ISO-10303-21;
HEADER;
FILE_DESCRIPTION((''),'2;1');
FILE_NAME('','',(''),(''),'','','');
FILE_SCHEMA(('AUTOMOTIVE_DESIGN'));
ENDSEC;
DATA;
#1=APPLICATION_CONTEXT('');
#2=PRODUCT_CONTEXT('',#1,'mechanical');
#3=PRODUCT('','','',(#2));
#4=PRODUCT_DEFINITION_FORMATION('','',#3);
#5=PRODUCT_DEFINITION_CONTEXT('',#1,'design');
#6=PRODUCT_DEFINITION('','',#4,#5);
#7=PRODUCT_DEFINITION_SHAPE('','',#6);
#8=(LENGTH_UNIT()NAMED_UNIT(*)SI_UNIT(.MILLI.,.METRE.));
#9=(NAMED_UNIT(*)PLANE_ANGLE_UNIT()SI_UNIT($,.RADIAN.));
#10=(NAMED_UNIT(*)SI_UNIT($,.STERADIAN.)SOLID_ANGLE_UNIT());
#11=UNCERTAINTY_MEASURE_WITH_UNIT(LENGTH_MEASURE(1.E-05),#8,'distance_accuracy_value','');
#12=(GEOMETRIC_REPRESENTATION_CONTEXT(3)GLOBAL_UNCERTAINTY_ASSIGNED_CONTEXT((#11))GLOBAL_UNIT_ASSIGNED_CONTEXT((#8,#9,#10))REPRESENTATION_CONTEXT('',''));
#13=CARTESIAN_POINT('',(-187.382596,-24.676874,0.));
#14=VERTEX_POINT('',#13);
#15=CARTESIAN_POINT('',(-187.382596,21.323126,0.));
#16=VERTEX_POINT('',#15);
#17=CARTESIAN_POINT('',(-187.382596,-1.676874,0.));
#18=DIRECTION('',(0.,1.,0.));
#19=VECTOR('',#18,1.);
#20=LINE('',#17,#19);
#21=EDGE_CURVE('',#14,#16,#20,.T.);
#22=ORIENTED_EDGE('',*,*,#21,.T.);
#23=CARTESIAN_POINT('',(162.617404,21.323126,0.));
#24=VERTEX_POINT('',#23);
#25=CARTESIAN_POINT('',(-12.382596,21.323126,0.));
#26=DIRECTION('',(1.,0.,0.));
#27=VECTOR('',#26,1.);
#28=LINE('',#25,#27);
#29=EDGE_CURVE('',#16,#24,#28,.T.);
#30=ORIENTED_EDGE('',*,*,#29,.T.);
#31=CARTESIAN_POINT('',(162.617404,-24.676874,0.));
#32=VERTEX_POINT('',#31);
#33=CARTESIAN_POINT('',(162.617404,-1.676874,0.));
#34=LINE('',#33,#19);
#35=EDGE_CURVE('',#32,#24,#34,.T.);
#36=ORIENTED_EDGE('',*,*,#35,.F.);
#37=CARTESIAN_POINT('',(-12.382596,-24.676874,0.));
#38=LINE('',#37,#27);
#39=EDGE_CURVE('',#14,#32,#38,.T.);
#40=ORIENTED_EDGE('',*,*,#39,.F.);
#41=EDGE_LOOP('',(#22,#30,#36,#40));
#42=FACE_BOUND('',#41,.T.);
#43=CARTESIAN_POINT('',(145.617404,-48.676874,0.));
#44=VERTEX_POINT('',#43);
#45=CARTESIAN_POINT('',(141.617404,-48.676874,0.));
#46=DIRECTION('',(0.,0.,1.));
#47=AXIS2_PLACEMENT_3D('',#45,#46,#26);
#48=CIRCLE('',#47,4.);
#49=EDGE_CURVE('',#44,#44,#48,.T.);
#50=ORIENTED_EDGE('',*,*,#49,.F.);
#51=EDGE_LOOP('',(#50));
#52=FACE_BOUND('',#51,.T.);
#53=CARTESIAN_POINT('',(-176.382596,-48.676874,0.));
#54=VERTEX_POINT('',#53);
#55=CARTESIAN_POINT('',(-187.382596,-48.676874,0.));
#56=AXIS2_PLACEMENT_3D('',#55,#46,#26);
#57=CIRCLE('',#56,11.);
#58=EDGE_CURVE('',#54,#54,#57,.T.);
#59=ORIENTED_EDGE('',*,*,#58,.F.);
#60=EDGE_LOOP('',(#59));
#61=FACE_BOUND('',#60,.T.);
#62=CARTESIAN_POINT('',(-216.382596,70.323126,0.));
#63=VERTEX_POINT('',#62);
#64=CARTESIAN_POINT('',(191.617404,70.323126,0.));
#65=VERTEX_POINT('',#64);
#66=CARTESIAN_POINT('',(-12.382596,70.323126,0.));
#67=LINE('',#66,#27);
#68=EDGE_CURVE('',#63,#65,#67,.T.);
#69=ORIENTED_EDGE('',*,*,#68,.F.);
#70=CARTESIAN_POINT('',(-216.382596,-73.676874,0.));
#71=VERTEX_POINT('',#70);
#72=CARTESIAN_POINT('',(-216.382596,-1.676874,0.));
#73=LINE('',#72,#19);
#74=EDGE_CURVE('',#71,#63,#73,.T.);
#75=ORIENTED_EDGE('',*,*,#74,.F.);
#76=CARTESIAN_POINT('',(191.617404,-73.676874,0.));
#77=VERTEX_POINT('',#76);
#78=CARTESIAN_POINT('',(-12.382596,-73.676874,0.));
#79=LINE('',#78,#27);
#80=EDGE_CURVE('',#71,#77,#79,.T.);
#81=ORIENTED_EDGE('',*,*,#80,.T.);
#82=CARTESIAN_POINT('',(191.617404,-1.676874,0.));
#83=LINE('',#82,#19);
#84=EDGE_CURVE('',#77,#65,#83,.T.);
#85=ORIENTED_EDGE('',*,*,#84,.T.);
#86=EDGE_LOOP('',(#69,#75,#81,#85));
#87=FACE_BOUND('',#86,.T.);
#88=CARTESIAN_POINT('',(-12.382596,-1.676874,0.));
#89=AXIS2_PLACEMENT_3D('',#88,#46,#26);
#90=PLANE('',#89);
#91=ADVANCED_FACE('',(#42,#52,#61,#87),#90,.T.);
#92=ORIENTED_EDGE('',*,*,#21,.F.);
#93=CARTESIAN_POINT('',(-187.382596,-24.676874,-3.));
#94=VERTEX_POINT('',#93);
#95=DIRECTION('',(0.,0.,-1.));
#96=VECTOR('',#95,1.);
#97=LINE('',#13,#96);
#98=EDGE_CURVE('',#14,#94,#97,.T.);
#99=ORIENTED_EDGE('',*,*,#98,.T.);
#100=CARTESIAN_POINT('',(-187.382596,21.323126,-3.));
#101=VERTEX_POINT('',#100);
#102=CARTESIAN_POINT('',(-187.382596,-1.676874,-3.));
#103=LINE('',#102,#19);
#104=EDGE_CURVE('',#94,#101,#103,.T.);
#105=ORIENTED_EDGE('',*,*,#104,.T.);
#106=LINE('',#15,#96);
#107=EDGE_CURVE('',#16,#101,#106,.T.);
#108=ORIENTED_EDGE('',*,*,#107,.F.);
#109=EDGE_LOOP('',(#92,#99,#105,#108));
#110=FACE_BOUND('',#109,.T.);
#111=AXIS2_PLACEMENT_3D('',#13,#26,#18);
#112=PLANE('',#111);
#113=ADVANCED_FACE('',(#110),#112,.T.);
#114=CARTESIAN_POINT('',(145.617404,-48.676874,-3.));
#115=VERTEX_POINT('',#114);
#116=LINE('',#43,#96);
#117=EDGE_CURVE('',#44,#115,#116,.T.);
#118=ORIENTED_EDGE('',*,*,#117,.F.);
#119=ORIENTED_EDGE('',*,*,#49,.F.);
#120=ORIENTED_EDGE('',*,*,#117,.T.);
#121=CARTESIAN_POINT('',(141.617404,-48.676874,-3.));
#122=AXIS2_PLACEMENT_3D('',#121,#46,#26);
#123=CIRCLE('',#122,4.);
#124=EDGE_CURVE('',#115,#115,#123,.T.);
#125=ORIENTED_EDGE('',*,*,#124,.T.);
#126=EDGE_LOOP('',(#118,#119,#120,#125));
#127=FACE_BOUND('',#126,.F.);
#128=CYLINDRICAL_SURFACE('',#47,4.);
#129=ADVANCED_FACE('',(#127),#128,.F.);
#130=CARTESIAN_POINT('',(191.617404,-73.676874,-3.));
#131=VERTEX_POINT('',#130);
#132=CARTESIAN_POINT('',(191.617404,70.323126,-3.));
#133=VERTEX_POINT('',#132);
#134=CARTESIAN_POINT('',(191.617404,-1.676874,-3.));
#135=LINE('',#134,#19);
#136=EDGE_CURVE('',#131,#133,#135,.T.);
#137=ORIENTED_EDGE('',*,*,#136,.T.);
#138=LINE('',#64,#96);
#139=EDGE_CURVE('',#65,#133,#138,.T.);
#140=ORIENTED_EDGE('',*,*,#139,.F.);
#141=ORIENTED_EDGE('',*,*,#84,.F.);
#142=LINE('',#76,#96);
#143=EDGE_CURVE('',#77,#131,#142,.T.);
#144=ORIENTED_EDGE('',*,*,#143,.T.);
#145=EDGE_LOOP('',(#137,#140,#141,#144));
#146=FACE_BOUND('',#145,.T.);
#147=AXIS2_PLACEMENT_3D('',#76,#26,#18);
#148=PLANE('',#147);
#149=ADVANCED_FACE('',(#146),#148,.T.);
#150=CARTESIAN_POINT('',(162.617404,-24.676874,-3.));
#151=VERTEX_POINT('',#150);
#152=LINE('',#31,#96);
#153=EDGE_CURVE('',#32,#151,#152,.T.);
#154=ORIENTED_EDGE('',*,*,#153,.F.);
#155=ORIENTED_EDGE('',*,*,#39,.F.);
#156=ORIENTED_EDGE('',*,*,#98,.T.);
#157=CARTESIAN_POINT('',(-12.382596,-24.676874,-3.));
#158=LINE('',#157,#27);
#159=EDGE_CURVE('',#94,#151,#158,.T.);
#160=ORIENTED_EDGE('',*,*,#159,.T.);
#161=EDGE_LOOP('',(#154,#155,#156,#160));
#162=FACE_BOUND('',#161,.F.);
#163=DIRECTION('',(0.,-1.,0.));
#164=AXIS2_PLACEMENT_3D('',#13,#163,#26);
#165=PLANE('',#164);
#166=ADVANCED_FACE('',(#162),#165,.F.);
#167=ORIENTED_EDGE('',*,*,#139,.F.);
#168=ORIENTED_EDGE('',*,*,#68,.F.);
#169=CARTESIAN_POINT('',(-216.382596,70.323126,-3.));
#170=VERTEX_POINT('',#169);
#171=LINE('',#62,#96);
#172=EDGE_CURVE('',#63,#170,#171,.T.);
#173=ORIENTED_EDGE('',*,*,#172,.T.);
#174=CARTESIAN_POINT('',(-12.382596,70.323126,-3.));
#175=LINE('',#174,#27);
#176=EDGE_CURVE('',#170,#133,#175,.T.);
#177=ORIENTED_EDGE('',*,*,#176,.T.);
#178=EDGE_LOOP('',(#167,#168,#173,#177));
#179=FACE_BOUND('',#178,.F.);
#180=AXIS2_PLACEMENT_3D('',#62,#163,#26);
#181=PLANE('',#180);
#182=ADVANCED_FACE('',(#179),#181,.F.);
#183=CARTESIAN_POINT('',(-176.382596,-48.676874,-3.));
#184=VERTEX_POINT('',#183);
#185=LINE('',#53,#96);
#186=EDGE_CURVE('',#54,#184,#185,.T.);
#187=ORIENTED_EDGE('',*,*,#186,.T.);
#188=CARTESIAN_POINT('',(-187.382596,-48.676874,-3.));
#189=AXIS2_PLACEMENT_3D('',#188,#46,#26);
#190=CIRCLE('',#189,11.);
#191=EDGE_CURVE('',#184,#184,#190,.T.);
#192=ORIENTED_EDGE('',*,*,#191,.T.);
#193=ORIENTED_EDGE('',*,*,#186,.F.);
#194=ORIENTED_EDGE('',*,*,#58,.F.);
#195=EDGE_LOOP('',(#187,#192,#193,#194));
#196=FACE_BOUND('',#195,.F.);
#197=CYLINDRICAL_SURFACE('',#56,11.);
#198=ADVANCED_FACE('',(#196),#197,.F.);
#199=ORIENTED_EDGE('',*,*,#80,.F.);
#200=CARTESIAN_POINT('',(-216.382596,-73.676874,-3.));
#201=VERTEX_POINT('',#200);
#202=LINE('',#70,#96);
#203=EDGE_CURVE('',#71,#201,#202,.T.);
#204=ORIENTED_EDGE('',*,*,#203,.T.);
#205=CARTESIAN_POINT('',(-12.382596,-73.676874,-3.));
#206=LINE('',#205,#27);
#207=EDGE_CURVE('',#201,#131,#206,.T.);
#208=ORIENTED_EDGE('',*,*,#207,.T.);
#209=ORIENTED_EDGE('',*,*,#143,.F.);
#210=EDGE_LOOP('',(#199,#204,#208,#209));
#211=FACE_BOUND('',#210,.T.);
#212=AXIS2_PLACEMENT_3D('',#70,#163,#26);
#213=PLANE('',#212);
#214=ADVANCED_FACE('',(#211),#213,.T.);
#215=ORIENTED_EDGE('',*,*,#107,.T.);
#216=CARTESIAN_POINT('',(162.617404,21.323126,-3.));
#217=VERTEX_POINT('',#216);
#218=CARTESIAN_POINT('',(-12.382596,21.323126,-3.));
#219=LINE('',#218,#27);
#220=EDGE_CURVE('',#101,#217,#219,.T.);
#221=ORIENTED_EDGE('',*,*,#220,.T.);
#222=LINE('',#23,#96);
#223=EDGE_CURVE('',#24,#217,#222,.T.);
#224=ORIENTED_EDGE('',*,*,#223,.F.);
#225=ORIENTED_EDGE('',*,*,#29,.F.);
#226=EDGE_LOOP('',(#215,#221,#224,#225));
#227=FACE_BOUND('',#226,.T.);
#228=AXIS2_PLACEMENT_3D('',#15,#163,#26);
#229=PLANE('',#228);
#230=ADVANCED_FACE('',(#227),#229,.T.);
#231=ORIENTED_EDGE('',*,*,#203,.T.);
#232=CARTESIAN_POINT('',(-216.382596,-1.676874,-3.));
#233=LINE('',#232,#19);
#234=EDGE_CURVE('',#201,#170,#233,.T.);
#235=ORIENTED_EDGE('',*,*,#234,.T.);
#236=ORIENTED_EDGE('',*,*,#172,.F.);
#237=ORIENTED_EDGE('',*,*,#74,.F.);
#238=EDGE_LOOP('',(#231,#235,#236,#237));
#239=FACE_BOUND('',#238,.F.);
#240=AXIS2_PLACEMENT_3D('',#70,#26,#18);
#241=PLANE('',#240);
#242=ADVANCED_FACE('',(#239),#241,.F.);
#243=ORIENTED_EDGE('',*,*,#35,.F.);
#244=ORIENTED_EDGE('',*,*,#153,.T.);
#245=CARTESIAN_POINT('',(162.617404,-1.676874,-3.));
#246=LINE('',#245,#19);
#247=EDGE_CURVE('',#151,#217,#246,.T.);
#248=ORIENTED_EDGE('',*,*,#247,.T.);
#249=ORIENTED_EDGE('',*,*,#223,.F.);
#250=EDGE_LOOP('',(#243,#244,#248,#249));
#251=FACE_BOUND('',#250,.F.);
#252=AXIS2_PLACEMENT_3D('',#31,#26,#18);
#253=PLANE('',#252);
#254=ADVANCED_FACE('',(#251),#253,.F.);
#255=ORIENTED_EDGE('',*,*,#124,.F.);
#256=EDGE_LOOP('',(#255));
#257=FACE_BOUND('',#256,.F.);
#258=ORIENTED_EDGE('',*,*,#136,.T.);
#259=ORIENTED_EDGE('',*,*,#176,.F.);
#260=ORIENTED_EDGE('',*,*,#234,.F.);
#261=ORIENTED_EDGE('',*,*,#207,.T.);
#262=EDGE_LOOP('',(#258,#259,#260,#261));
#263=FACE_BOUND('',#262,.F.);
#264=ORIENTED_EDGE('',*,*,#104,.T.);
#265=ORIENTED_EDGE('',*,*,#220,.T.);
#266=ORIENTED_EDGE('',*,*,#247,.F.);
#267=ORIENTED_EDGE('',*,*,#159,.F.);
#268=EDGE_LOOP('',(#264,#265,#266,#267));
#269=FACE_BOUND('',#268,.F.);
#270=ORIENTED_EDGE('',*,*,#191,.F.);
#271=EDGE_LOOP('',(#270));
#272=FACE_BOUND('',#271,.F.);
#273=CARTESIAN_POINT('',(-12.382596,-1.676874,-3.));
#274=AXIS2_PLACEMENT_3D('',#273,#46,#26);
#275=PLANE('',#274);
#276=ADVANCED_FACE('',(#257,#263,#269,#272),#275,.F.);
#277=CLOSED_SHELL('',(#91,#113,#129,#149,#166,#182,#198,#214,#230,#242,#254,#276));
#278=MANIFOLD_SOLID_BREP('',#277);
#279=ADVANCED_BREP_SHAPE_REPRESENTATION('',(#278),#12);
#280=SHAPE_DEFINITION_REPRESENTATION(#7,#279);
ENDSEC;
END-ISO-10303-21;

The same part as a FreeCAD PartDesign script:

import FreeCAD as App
import Part
import Sketcher
from FreeCAD import Vector

doc = App.newDocument("Part")
params = doc.addObject("Spreadsheet::Sheet", "Params")
for row, (alias, value) in enumerate([
    ("sketch1_diameter", "22 mm"),
    ("sketch1_diameter2", "8 mm"),
    ("sketch1_width", "408 mm"),
    ("sketch1_width2", "350 mm"),
    ("sketch1_height", "144 mm"),
    ("pad1_length", "3 mm"),
], start=1):
    params.set(f"A{row}", alias)
    params.set(f"B{row}", "=" + value)
    params.setAlias(f"B{row}", alias)

body = doc.addObject("PartDesign::Body", "Body")

# Sketch on XY plane
sketch1 = doc.addObject("Sketcher::SketchObject", "Sketch")
body.addObject(sketch1)
sketch1.AttachmentSupport = (doc.XY_Plane, [""])
sketch1.MapMode = "FlatFace"
sketch1.addGeometry([
    Part.LineSegment(Vector(-216.4, 70.3, 0), Vector(-216.4, -73.7, 0)),  # 0
    Part.LineSegment(Vector(-216.4, -73.7, 0), Vector(191.6, -73.7, 0)),  # 1
    Part.LineSegment(Vector(191.6, -73.7, 0), Vector(191.6, 70.3, 0)),  # 2
    Part.LineSegment(Vector(191.6, 70.3, 0), Vector(-216.4, 70.3, 0)),  # 3
    Part.Circle(Vector(-187.4, -48.7, 0), Vector(0, 0, 1), 11),  # 4
    Part.Circle(Vector(141.6, -48.7, 0), Vector(0, 0, 1), 4),  # 5
    Part.LineSegment(Vector(162.6, -24.7, 0), Vector(-187.4, -24.7, 0)),  # 6
    Part.LineSegment(Vector(-187.4, -24.7, 0), Vector(-187.4, 21.3, 0)),  # 7
    Part.LineSegment(Vector(-187.4, 21.3, 0), Vector(162.6, 21.3, 0)),  # 8
    Part.LineSegment(Vector(162.6, 21.3, 0), Vector(162.6, -24.7, 0)),  # 9
], False)
sketch1.addConstraint([
    Sketcher.Constraint("Coincident", 0, 2, 1, 1),
    Sketcher.Constraint("Coincident", 1, 2, 2, 1),
    Sketcher.Constraint("Coincident", 2, 2, 3, 1),
    Sketcher.Constraint("Coincident", 3, 2, 0, 1),
    Sketcher.Constraint("Coincident", 6, 2, 7, 1),
    Sketcher.Constraint("Coincident", 7, 2, 8, 1),
    Sketcher.Constraint("Coincident", 8, 2, 9, 1),
    Sketcher.Constraint("Coincident", 9, 2, 6, 1),
    Sketcher.Constraint("Vertical", 0),
    Sketcher.Constraint("Horizontal", 1),
    Sketcher.Constraint("Vertical", 2),
    Sketcher.Constraint("Horizontal", 3),
    Sketcher.Constraint("Horizontal", 6),
    Sketcher.Constraint("Vertical", 7),
    Sketcher.Constraint("Horizontal", 8),
    Sketcher.Constraint("Vertical", 9),
    Sketcher.Constraint("Horizontal", 4, 3, 5, 3),
    Sketcher.Constraint("Vertical", 4, 3, 6, 2),
    Sketcher.Constraint("Diameter", 4, 22.0),
    Sketcher.Constraint("Diameter", 5, 8.0),
    Sketcher.Constraint("DistanceX", 1, 1, 1, 2, 408.0),
    Sketcher.Constraint("DistanceX", 6, 2, 6, 1, 350.0),
    Sketcher.Constraint("DistanceY", 0, 2, 0, 1, 144.0),
    Sketcher.Constraint("DistanceY", 7, 1, 7, 2, 46.0),
    Sketcher.Constraint("DistanceX", 4, 3, 5, 3, 329.0),
    Sketcher.Constraint("DistanceX", 0, 2, 4, 3, 29.0),
    Sketcher.Constraint("DistanceY", 0, 2, 4, 3, 25.0),
    Sketcher.Constraint("DistanceY", 4, 3, 6, 2, 24.0),
    Sketcher.Constraint("DistanceX", 4, 3, -1, 1, 187.382596),
    Sketcher.Constraint("DistanceY", 4, 3, -1, 1, 48.676874),
])
sketch1.setExpression("Constraints[18]", "Params.sketch1_diameter")
sketch1.setExpression("Constraints[19]", "Params.sketch1_diameter2")
sketch1.setExpression("Constraints[20]", "Params.sketch1_width")
sketch1.setExpression("Constraints[21]", "Params.sketch1_width2")
sketch1.setExpression("Constraints[22]", "Params.sketch1_height")
pad1 = doc.addObject("PartDesign::Pad", "Pad")
body.addObject(pad1)
pad1.Profile = sketch1
pad1.setExpression("Length", "Params.pad1_length")
pad1.Reversed = True

doc.recompute()
